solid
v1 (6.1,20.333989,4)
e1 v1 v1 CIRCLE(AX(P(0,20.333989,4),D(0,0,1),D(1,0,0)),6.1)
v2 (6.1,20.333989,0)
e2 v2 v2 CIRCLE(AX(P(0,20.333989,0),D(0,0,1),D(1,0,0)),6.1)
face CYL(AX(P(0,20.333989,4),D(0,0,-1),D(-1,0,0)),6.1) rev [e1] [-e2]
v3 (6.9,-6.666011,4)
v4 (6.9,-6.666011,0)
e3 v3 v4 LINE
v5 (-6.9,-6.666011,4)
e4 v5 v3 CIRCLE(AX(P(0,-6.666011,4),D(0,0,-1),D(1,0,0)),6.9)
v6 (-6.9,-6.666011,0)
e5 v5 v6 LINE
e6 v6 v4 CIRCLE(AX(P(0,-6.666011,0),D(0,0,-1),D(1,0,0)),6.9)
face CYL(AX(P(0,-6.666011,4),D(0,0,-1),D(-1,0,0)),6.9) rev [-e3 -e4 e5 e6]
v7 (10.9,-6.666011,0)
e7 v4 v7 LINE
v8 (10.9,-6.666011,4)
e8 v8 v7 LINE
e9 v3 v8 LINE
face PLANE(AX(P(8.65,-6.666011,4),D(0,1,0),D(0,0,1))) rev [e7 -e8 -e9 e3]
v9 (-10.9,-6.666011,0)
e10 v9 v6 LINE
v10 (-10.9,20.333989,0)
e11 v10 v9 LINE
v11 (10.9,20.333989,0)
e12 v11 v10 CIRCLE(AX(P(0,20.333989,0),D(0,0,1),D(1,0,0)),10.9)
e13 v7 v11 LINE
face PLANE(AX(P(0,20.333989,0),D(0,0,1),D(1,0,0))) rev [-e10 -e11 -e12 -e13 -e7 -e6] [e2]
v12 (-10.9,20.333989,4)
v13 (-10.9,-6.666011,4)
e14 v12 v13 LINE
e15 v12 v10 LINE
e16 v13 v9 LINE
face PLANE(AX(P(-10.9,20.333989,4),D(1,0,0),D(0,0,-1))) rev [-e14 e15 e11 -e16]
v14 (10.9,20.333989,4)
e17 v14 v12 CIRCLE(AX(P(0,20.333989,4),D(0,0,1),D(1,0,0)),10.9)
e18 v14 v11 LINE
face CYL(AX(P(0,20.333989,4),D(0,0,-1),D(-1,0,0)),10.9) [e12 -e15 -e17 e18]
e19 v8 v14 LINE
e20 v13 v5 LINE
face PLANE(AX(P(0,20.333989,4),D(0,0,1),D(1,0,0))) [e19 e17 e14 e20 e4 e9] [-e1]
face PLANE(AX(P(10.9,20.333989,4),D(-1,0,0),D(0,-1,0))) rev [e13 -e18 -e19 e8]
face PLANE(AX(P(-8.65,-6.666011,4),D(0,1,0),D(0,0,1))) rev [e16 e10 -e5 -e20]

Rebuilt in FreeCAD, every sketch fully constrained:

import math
import FreeCAD as App
import Part
import Sketcher

doc = App.newDocument("Part")
body = doc.addObject("PartDesign::Body", "Body")

sketch1 = body.newObject("Sketcher::SketchObject", "Sketch")
sketch1.AttachmentSupport = (doc.getObject("XY_Plane"), [""])
sketch1.MapMode = "FlatFace"
sketch1.addGeometry(Part.LineSegment(App.Vector(-10.9, 20.333989, 0), App.Vector(-10.9, -6.666011, 0)), False)
sketch1.addGeometry(Part.LineSegment(App.Vector(-10.9, -6.666011, 0), App.Vector(-6.9, -6.666011, 0)), False)
sketch1.addGeometry(Part.ArcOfCircle(Part.Circle(App.Vector(0, -6.666011, 0), App.Vector(0, 0, 1), 6.9), math.radians(0), math.radians(180)), False)
sketch1.addGeometry(Part.LineSegment(App.Vector(6.9, -6.666011, 0), App.Vector(10.9, -6.666011, 0)), False)
sketch1.addGeometry(Part.LineSegment(App.Vector(10.9, -6.666011, 0), App.Vector(10.9, 20.333989, 0)), False)
sketch1.addGeometry(Part.ArcOfCircle(Part.Circle(App.Vector(0, 20.333989, 0), App.Vector(0, 0, 1), 10.9), math.radians(0), math.radians(180)), False)
sketch1.addGeometry(Part.Circle(App.Vector(0, 20.333989, 0), App.Vector(0, 0, 1), 6.1), False)
sketch1.addConstraint(Sketcher.Constraint("Coincident", 0, 2, 1, 1))
sketch1.addConstraint(Sketcher.Constraint("Coincident", 1, 2, 2, 2))
sketch1.addConstraint(Sketcher.Constraint("Coincident", 2, 1, 3, 1))
sketch1.addConstraint(Sketcher.Constraint("Coincident", 3, 2, 4, 1))
sketch1.addConstraint(Sketcher.Constraint("Tangent", 4, 2, 5, 1))
sketch1.addConstraint(Sketcher.Constraint("Tangent", 5, 2, 0, 1))
sketch1.addConstraint(Sketcher.Constraint("Vertical", 0))
sketch1.addConstraint(Sketcher.Constraint("Horizontal", 1))
sketch1.addConstraint(Sketcher.Constraint("Horizontal", 3))
sketch1.addConstraint(Sketcher.Constraint("Vertical", 4))
sketch1.addConstraint(Sketcher.Constraint("Coincident", 6, 3, 5, 3))
sketch1.addConstraint(Sketcher.Constraint("Symmetric", 1, 2, 2, 1, -2))
sketch1.addConstraint(Sketcher.Constraint("PointOnObject", 5, 3, -2))
sketch1.addConstraint(Sketcher.Constraint("Horizontal", 2, 3, 0, 2))
sketch1.addConstraint(Sketcher.Constraint("Diameter", 6, 12.2))
sketch1.addConstraint(Sketcher.Constraint("Radius", 2, 6.9))
sketch1.addConstraint(Sketcher.Constraint("Radius", 5, 10.9))
sketch1.addConstraint(Sketcher.Constraint("DistanceY", 0, 2, 0, 1, 27.0))
sketch1.addConstraint(Sketcher.Constraint("DistanceY", 2, 3, -1, 1, 6.666011))
pad1 = body.newObject("PartDesign::Pad", "Pad")
pad1.Profile = sketch1
pad1.Length = 4

doc.recompute()
